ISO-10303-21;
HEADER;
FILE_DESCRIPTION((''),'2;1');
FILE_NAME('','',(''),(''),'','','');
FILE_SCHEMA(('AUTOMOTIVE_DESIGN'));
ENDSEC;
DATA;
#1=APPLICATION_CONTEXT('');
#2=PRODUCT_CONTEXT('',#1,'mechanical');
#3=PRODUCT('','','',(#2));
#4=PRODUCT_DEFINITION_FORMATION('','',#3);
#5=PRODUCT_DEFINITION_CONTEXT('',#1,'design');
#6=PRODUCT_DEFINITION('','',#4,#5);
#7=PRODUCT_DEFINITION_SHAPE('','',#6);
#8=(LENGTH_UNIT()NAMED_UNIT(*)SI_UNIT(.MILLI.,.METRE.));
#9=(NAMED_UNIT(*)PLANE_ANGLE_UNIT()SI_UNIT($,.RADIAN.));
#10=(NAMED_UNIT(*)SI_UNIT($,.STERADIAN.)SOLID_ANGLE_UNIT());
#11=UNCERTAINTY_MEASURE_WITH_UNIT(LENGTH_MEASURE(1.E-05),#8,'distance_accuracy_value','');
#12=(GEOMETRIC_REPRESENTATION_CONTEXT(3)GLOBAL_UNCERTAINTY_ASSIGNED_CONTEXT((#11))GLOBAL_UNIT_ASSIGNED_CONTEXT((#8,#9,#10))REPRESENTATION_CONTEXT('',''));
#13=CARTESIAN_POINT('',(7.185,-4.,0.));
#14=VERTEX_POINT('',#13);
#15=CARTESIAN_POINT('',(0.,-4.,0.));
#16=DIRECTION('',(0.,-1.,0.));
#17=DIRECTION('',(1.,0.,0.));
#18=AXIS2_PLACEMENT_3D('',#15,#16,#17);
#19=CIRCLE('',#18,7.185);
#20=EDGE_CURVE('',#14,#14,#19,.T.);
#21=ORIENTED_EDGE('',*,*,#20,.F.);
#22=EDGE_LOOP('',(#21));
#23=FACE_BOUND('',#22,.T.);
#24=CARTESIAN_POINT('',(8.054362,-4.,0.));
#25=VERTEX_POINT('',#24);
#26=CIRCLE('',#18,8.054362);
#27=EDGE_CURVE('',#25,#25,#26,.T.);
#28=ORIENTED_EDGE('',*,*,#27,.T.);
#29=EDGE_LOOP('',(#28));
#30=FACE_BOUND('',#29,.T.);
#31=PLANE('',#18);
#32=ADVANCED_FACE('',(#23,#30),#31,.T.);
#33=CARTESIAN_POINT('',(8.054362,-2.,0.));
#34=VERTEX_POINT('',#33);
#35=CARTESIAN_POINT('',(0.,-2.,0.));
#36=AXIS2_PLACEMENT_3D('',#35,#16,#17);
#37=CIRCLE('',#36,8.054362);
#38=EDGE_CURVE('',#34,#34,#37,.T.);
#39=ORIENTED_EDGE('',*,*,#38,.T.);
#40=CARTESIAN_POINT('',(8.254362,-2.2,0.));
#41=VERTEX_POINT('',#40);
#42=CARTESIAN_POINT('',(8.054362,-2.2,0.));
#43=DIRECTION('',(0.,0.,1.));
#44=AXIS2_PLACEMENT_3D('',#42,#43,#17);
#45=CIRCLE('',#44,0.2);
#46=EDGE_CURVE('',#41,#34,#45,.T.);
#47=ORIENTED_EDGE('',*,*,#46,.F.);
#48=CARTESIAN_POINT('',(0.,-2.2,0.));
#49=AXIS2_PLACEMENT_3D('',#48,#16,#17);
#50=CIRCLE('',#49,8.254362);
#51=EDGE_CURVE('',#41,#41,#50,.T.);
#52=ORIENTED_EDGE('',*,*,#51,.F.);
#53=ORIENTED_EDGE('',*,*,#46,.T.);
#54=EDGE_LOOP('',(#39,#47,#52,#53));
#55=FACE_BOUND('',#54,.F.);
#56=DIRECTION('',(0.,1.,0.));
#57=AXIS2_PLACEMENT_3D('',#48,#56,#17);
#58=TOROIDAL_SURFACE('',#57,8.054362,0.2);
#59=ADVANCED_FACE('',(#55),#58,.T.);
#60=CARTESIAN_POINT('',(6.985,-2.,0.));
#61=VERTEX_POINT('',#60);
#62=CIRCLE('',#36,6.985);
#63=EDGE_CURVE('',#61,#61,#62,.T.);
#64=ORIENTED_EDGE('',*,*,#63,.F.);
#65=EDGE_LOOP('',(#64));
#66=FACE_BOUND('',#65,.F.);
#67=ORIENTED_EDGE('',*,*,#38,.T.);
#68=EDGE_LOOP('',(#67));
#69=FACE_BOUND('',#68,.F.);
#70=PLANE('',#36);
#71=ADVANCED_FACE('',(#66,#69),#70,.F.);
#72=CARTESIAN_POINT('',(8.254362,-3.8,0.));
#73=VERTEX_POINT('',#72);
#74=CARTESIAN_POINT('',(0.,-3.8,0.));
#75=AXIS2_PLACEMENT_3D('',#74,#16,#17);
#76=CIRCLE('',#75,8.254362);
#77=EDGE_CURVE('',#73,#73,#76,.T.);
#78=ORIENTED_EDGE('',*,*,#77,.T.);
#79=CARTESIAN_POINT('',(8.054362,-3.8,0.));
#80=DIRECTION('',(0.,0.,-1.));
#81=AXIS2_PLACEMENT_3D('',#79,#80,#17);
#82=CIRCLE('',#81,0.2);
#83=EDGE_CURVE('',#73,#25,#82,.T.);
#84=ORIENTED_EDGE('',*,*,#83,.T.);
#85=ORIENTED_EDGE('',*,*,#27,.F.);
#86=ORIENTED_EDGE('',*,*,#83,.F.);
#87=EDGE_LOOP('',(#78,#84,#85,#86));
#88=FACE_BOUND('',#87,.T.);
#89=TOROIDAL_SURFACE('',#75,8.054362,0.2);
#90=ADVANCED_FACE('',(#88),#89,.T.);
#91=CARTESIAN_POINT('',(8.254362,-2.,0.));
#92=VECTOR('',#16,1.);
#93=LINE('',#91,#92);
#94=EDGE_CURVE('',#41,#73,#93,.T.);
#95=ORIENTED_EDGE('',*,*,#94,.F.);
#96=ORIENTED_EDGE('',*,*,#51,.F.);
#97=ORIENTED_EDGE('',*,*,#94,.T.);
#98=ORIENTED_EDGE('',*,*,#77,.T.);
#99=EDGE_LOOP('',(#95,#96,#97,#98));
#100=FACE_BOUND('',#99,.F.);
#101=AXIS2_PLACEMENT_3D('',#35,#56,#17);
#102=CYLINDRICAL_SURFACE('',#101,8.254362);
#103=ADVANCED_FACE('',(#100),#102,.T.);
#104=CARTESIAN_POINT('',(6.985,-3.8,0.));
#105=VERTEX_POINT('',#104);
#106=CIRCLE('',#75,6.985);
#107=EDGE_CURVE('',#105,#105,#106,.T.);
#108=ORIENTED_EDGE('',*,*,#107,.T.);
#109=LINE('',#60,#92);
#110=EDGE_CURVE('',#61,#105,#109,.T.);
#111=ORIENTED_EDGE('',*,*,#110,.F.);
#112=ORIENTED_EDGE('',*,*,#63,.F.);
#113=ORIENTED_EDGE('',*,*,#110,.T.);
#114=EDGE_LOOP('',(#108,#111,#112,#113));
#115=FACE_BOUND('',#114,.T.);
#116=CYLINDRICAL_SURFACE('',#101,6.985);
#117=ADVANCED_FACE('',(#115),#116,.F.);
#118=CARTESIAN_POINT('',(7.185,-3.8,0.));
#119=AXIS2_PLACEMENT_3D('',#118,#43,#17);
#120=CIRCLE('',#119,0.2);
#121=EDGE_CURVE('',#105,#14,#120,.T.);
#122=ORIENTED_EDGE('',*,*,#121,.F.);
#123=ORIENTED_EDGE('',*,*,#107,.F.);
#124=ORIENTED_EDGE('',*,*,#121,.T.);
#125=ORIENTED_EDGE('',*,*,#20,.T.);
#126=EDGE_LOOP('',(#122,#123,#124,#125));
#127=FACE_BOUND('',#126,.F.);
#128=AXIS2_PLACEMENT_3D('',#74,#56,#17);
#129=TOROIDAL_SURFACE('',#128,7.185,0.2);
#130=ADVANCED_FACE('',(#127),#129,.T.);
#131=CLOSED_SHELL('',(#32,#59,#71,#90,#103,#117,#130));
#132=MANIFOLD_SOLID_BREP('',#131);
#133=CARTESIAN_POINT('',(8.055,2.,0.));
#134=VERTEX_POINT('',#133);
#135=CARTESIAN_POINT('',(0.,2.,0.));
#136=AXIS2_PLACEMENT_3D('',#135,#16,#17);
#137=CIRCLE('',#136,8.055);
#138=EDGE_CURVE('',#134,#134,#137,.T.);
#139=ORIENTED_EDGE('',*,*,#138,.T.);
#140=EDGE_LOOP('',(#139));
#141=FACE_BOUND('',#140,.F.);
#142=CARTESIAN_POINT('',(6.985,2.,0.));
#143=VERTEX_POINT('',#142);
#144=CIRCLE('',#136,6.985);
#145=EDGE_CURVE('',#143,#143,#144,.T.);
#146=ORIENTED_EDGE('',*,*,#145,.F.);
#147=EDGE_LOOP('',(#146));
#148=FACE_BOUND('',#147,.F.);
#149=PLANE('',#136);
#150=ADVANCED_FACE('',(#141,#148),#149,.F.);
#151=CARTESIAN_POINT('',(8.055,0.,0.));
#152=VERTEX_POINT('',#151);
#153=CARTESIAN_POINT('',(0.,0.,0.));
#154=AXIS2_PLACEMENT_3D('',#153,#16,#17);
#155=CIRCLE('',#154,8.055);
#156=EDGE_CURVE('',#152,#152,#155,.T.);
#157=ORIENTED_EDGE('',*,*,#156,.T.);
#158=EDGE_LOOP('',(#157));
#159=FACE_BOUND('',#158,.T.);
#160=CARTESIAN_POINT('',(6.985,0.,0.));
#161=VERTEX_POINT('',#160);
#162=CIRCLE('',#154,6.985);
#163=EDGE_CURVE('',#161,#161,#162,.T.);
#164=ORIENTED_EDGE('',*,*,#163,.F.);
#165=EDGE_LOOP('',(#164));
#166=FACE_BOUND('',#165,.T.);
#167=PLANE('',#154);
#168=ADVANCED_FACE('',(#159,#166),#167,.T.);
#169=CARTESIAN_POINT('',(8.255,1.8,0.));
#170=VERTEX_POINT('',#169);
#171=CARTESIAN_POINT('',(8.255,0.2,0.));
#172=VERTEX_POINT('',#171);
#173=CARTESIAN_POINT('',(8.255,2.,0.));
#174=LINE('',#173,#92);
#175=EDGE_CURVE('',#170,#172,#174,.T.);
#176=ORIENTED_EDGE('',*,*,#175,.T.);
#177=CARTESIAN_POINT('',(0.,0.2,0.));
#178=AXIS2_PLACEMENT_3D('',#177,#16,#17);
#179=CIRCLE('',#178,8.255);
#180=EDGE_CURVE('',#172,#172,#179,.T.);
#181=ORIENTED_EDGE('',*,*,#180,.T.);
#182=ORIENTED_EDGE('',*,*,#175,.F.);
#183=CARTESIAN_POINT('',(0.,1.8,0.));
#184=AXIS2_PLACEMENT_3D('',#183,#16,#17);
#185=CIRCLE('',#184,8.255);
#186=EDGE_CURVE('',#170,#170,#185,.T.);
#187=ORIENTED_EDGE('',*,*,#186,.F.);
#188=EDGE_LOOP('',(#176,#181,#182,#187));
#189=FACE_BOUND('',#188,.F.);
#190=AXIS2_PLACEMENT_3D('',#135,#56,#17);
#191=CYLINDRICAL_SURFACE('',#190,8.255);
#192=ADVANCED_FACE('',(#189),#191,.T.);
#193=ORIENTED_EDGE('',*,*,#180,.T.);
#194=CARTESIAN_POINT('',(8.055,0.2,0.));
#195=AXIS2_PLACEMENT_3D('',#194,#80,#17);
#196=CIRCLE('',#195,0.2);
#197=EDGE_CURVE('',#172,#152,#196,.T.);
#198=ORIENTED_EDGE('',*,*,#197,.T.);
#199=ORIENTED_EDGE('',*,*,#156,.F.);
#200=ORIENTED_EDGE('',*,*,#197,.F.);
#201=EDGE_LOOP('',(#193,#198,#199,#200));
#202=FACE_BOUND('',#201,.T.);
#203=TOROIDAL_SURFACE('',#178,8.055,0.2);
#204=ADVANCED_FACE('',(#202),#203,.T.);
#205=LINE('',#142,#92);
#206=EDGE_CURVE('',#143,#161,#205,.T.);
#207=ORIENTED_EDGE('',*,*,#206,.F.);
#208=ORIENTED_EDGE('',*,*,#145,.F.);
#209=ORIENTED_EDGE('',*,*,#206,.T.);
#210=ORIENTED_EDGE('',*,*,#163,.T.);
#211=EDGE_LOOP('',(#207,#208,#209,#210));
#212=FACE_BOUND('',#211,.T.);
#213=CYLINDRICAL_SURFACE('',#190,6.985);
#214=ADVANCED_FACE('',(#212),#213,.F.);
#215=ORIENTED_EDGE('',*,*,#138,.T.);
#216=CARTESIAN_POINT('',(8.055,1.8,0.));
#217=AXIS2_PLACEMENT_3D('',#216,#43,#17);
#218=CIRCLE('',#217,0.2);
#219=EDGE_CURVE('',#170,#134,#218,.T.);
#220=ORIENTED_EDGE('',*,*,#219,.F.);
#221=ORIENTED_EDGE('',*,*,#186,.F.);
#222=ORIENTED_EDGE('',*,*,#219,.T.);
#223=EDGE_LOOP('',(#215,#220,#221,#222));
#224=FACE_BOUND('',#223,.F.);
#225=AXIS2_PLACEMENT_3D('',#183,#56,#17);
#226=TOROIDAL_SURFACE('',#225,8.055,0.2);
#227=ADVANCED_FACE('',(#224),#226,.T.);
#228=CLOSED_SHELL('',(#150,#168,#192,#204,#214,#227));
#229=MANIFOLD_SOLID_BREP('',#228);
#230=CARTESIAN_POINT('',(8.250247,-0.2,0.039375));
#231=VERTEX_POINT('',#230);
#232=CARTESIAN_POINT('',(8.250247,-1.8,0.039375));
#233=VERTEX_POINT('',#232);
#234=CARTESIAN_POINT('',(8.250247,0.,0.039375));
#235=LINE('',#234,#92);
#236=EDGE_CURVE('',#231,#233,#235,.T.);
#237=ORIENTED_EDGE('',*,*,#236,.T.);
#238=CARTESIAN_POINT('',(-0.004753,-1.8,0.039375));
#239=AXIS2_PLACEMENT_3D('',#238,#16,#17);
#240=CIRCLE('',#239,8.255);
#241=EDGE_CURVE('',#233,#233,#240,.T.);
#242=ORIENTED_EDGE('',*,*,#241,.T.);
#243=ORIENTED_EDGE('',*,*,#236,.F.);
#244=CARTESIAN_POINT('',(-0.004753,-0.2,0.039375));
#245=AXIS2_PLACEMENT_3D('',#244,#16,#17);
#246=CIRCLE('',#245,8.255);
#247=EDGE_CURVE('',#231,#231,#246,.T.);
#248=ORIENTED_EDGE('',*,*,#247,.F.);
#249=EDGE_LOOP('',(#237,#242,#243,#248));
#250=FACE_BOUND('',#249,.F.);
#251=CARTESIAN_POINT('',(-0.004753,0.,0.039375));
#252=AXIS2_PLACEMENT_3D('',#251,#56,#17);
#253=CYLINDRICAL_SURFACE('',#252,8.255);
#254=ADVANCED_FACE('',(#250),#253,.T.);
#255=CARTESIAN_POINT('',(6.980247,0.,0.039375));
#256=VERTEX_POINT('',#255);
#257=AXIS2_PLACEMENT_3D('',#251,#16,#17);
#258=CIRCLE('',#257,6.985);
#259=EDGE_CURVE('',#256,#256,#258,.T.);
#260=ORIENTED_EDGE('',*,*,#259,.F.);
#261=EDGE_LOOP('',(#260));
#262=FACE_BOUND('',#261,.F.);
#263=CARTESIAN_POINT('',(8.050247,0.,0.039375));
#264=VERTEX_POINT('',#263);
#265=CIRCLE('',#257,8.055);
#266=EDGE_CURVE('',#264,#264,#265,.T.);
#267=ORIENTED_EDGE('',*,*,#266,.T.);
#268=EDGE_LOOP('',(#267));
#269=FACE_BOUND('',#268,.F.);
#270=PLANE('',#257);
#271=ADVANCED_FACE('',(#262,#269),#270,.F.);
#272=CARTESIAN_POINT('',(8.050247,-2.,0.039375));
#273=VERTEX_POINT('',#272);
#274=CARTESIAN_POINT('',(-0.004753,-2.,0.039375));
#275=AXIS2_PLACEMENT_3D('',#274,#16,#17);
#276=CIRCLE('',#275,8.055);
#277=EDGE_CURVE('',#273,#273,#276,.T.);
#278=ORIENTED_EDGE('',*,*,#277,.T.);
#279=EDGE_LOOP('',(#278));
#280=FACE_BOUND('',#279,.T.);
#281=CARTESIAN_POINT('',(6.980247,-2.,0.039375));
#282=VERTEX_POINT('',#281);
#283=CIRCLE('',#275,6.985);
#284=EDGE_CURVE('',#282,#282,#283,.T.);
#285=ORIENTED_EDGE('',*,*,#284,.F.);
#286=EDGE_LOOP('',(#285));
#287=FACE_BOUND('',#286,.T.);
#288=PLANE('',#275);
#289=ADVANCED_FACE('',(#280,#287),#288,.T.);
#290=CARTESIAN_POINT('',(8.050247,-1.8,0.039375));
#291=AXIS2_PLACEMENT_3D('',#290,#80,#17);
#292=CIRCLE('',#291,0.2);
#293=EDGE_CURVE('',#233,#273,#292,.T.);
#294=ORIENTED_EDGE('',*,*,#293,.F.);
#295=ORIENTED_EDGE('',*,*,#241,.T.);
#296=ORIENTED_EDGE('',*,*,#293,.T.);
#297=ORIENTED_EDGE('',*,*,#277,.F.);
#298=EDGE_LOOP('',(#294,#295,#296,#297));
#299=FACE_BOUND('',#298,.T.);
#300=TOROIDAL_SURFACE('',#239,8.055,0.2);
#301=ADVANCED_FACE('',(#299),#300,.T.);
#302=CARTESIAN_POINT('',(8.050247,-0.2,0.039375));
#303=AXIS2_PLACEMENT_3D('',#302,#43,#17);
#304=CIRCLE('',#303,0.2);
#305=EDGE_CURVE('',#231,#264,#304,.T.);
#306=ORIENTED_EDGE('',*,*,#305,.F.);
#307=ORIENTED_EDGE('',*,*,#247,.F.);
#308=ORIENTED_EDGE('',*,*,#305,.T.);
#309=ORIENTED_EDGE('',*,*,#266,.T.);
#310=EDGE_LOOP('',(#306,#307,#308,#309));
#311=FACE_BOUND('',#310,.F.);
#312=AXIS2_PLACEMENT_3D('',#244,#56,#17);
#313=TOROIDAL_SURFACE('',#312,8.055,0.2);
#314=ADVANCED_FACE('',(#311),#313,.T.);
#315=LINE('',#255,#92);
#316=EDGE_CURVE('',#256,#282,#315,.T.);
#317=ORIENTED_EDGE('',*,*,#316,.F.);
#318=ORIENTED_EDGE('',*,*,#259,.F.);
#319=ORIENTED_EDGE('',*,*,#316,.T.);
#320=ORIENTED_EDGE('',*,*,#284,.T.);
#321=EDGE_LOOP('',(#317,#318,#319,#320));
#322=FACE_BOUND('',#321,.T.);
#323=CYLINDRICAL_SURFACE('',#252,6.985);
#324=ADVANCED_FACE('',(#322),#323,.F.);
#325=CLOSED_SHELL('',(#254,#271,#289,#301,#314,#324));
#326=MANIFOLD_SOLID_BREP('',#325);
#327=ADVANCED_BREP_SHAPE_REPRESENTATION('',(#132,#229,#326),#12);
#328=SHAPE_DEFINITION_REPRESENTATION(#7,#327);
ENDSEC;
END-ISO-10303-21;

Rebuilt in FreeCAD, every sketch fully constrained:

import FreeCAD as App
import Part
import Sketcher

V = App.Vector


def edges_at(feature, points):
    """Names of the edges that pass closest to the given points."""
    edges = feature.Shape.Edges
    near = lambda p: min(range(len(edges)), key=lambda i: edges[i].distToShape(Part.Vertex(*p))[0])
    return sorted({f"Edge{near(p) + 1}" for p in points})

doc = App.newDocument("Part")
body = doc.addObject("PartDesign::Body", "Body")

# Sketch on XZ plane
sketch1 = body.newObject("Sketcher::SketchObject", "Sketch")
sketch1.AttachmentSupport = (doc.getObject("XZ_Plane"), [""])
sketch1.MapMode = "FlatFace"
sketch1.AttachmentOffset = App.Placement(V(0, 0, 2), App.Rotation())
sketch1.addGeometry([
    Part.Circle(V(0, 0, 0), V(0, 0, 1), 8),
    Part.Circle(V(0, 0, 0), V(0, 0, 1), 7),
], False)
sketch1.addConstraint([
    Sketcher.Constraint("Coincident", 0, 3, -1, 1),
    Sketcher.Constraint("Coincident", 1, 3, -1, 1),
    Sketcher.Constraint("Diameter", 1, 13.97),
    Sketcher.Constraint("Diameter", 0, 16.508724),
])
pad1 = body.newObject("PartDesign::Pad", "Pad")
pad1.Profile = sketch1
pad1.Length = 2
doc.recompute()

fillet = body.newObject("PartDesign::Fillet", "Fillet")
fillet.Base = (pad1, edges_at(pad1, [(-8.254, -2, 0), (-6.985, -4, 0)]))
fillet.Radius = 0.2
doc.recompute()

fillet2 = body.newObject("PartDesign::Fillet", "Fillet001")
fillet2.Base = (fillet, edges_at(fillet, [(-8.254, -4, 0)]))
fillet2.Radius = 0.2
body2 = doc.addObject("PartDesign::Body", "Body001")

# Sketch on XZ plane
sketch2 = body2.newObject("Sketcher::SketchObject", "Sketch001")
sketch2.AttachmentSupport = (doc.getObject("XZ_Plane001"), [""])
sketch2.MapMode = "FlatFace"
sketch2.addGeometry([
    Part.Circle(V(0, 0, 0), V(0, 0, 1), 8),
    Part.Circle(V(0, 0, 0), V(0, 0, 1), 7),
], False)
sketch2.addConstraint([
    Sketcher.Constraint("Coincident", 1, 3, 0, 3),
    Sketcher.Constraint("Diameter", 0, 16.51),
    Sketcher.Constraint("Diameter", 1, 13.97),
    Sketcher.Constraint("DistanceX", 0, 3, -1, 1, 0.004753),
    Sketcher.Constraint("DistanceY", -1, 1, 0, 3, 0.039375),
])
pad2 = body2.newObject("PartDesign::Pad", "Pad001")
pad2.Profile = sketch2
pad2.Length = 2
doc.recompute()

fillet3 = body2.newObject("PartDesign::Fillet", "Fillet002")
fillet3.Base = (pad2, edges_at(pad2, [(-8.26, 0, 0.039)]))
fillet3.Radius = 0.2
doc.recompute()

fillet4 = body2.newObject("PartDesign::Fillet", "Fillet003")
fillet4.Base = (fillet3, edges_at(fillet3, [(-8.26, -2, 0.039)]))
fillet4.Radius = 0.2
body3 = doc.addObject("PartDesign::Body", "Body002")

# Sketch on XZ plane
sketch3 = body3.newObject("Sketcher::SketchObject", "Sketch002")
sketch3.AttachmentSupport = (doc.getObject("XZ_Plane002"), [""])
sketch3.MapMode = "FlatFace"
sketch3.AttachmentOffset = App.Placement(V(0, 0, -2), App.Rotation())
sketch3.addGeometry([
    Part.Circle(V(0, 0, 0), V(0, 0, 1), 8),
    Part.Circle(V(0, 0, 0), V(0, 0, 1), 7),
], False)
sketch3.addConstraint([
    Sketcher.Constraint("Coincident", 0, 3, -1, 1),
    Sketcher.Constraint("Coincident", 1, 3, -1, 1),
    Sketcher.Constraint("Diameter", 0, 16.51),
    Sketcher.Constraint("Diameter", 1, 13.97),
])
pad3 = body3.newObject("PartDesign::Pad", "Pad002")
pad3.Profile = sketch3
pad3.Length = 2
doc.recompute()

fillet5 = body3.newObject("PartDesign::Fillet", "Fillet004")
fillet5.Base = (pad3, edges_at(pad3, [(-8.255, 2, 0)]))
fillet5.Radius = 0.2
doc.recompute()

fillet6 = body3.newObject("PartDesign::Fillet", "Fillet005")
fillet6.Base = (fillet5, edges_at(fillet5, [(-8.255, 0, 0)]))
fillet6.Radius = 0.2

doc.recompute()
